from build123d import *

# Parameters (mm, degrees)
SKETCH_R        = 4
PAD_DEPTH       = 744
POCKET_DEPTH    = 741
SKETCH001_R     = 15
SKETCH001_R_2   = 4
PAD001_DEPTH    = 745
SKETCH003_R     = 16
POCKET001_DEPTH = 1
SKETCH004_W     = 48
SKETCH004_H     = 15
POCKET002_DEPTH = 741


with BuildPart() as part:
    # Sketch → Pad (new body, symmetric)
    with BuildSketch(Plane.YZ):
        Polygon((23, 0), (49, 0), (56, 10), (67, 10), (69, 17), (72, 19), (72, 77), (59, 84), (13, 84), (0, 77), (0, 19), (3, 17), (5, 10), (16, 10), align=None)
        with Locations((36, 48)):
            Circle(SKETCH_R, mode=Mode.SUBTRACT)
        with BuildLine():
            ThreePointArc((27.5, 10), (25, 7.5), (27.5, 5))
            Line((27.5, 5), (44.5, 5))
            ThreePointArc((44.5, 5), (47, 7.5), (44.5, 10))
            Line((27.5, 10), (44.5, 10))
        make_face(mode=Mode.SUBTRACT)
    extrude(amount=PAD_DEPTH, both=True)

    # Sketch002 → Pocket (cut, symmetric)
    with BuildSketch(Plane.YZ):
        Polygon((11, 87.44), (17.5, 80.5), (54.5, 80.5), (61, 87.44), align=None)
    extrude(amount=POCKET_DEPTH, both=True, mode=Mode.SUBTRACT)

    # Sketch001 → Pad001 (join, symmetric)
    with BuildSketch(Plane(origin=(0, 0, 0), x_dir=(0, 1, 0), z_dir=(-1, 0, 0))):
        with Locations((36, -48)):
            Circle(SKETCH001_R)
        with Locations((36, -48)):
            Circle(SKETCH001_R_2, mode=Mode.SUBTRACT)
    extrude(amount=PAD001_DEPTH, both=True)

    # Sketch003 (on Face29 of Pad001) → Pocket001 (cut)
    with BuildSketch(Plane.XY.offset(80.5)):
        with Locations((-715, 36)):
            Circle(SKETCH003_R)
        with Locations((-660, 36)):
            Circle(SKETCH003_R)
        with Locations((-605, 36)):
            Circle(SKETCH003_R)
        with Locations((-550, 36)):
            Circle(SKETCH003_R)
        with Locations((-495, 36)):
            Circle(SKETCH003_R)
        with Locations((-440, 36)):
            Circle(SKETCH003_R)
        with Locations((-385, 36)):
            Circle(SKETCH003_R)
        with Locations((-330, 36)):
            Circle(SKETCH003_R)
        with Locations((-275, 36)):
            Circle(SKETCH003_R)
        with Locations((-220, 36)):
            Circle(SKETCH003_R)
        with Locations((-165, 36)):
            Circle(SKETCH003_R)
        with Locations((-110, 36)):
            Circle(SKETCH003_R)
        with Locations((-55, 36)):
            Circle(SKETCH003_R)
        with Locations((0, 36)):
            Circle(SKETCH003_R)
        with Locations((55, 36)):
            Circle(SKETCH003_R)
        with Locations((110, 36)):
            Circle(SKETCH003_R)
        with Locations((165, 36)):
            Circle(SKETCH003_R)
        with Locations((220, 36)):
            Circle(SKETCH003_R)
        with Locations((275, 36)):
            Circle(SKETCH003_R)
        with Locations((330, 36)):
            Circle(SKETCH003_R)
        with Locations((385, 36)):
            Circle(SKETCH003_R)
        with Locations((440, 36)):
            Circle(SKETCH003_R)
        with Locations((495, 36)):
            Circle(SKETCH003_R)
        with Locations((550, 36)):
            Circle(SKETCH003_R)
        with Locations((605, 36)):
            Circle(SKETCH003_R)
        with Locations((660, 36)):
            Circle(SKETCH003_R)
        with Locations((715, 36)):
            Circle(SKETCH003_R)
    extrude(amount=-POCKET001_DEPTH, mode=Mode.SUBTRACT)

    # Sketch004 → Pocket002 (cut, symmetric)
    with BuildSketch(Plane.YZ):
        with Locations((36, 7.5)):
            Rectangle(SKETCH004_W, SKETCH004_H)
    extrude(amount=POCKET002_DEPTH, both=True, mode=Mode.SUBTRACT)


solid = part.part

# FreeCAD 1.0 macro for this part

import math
import FreeCAD as App
import Part
import Sketcher
from FreeCAD import Vector


def add_polygon(sketch, points):
    """Adds a closed chain of lines whose ends are joined by coincident constraints."""
    first, n = sketch.GeometryCount, len(points)
    for a, b in zip(points, points[1:] + points[:1]):
        sketch.addGeometry(Part.LineSegment(App.Vector(*a, 0), App.Vector(*b, 0)), False)
    for i in range(n):
        sketch.addConstraint(Sketcher.Constraint("Coincident", first + i, 2, first + (i + 1) % n, 1))

doc = App.newDocument("Part")
body = doc.addObject("PartDesign::Body", "Body")

sketch1 = body.newObject("Sketcher::SketchObject", "Sketch")
sketch1.AttachmentSupport = (doc.getObject("YZ_Plane"), [""])
sketch1.MapMode = "FlatFace"
add_polygon(sketch1, [(23, 0), (49, 0), (56, 10), (67, 10), (69, 17), (72, 19), (72, 77), (59, 84), (13, 84), (0, 77), (0, 19), (3, 17), (5, 10), (16, 10)])
sketch1.addGeometry(Part.ArcOfCircle(Part.Circle(Vector(27.5, 7.5, 0), Vector(0, 0, 1), 2.5), math.radians(90), math.radians(270)), False)
sketch1.addGeometry(Part.LineSegment(Vector(27.5, 10, 0), Vector(44.5, 10, 0)), False)
sketch1.addGeometry(Part.ArcOfCircle(Part.Circle(Vector(44.5, 7.5, 0), Vector(0, 0, 1), 2.5), math.radians(-90), math.radians(90)), False)
sketch1.addGeometry(Part.LineSegment(Vector(44.5, 5, 0), Vector(27.5, 5, 0)), False)
sketch1.addGeometry(Part.Circle(Vector(36, 48, 0), Vector(0, 0, 1), 4), False)
sketch1.addConstraint([
    Sketcher.Constraint("Tangent", 14, 1, 15, 1),
    Sketcher.Constraint("Tangent", 15, 2, 16, 2),
    Sketcher.Constraint("Tangent", 16, 1, 17, 1),
    Sketcher.Constraint("Tangent", 17, 2, 14, 2),
    Sketcher.Constraint("Horizontal", 0),
    Sketcher.Constraint("Horizontal", 2),
    Sketcher.Constraint("Vertical", 5),
    Sketcher.Constraint("Horizontal", 7),
    Sketcher.Constraint("Vertical", 9),
    Sketcher.Constraint("Horizontal", 12),
    Sketcher.Constraint("Horizontal", 15),
    Sketcher.Constraint("Horizontal", 17),
    Sketcher.Constraint("PointOnObject", 0, 2, -1),
    Sketcher.Constraint("PointOnObject", 8, 2, -2),
    Sketcher.Constraint("Horizontal", 5, 2, 8, 2),
    Sketcher.Constraint("Horizontal", 4, 2, 9, 2),
    Sketcher.Constraint("Horizontal", 3, 2, 10, 2),
    Sketcher.Constraint("Horizontal", 2, 2, 11, 2),
    Sketcher.Constraint("Horizontal", 12, 2, 14, 1),
    Sketcher.Constraint("Equal", 2, 12),
    Sketcher.Constraint("Equal", 6, 8),
    Sketcher.Constraint("Equal", 4, 10),
    Sketcher.Constraint("Equal", 3, 11),
    Sketcher.Constraint("Equal", 1, 13),
    Sketcher.Constraint("Diameter", 18, 8.0),
    Sketcher.Constraint("Radius", 14, 2.5),
    Sketcher.Constraint("DistanceX", 0, 1, 0, 2, 26.0),
    Sketcher.Constraint("DistanceX", 2, 1, 2, 2, 11.0),
    Sketcher.Constraint("DistanceX", 7, 2, 7, 1, 46.0),
    Sketcher.Constraint("DistanceX", 15, 1, 15, 2, 17.0),
    Sketcher.Constraint("DistanceY", 5, 1, 5, 2, 58.0),
    Sketcher.Constraint("DistanceX", -1, 1, 18, 3, 36.0),
    Sketcher.Constraint("DistanceY", -1, 1, 18, 3, 48.0),
    Sketcher.Constraint("DistanceX", -1, 1, 0, 2, 49.0),
    Sketcher.Constraint("DistanceX", -1, 1, 1, 2, 56.0),
    Sketcher.Constraint("DistanceY", -1, 1, 1, 2, 10.0),
    Sketcher.Constraint("DistanceX", -1, 1, 3, 2, 69.0),
    Sketcher.Constraint("DistanceY", -1, 1, 3, 2, 17.0),
    Sketcher.Constraint("DistanceY", -1, 1, 4, 2, 19.0),
    Sketcher.Constraint("DistanceY", -1, 1, 6, 2, 84.0),
    Sketcher.Constraint("DistanceX", -1, 1, 14, 3, 27.5),
])
pad1 = body.newObject("PartDesign::Pad", "Pad")
pad1.Profile = sketch1
pad1.Length = 1488
pad1.Midplane = True

sketch2 = body.newObject("Sketcher::SketchObject", "Sketch001")
sketch2.AttachmentSupport = (doc.getObject("YZ_Plane"), [""])
sketch2.MapMode = "FlatFace"
add_polygon(sketch2, [(11, 87), (18, 80), (54, 80), (61, 87)])
sketch2.addConstraint([
    Sketcher.Constraint("Horizontal", 1),
    Sketcher.Constraint("Horizontal", 3),
    Sketcher.Constraint("Equal", 0, 2),
    Sketcher.Constraint("DistanceX", 1, 1, 1, 2, 37.0),
    Sketcher.Constraint("DistanceX", 3, 2, 3, 1, 50.0),
    Sketcher.Constraint("DistanceX", -1, 1, 2, 2, 61.0),
    Sketcher.Constraint("DistanceY", -1, 1, 0, 2, 80.5),
    Sketcher.Constraint("DistanceY", -1, 1, 2, 2, 87.44),
])
pocket1 = body.newObject("PartDesign::Pocket", "Pocket")
pocket1.Profile = sketch2
pocket1.Length = 1482
pocket1.Midplane = True

sketch3 = body.newObject("Sketcher::SketchObject", "Sketch002")
sketch3.AttachmentSupport = (doc.getObject("YZ_Plane"), [""])
sketch3.MapMode = "FlatFace"
sketch3.addGeometry([
    Part.Circle(Vector(36, 48, 0), Vector(0, 0, 1), 15),
    Part.Circle(Vector(36, 48, 0), Vector(0, 0, 1), 4),
], False)
sketch3.addConstraint([
    Sketcher.Constraint("Coincident", 1, 3, 0, 3),
    Sketcher.Constraint("Diameter", 0, 30.0),
    Sketcher.Constraint("Diameter", 1, 8.0),
    Sketcher.Constraint("DistanceX", -1, 1, 0, 3, 36.0),
    Sketcher.Constraint("DistanceY", -1, 1, 0, 3, 48.0),
])
pad2 = body.newObject("PartDesign::Pad", "Pad001")
pad2.Profile = sketch3
pad2.Length = 1490
pad2.Midplane = True

sketch4 = body.newObject("Sketcher::SketchObject", "Sketch003")
sketch4.AttachmentSupport = (doc.getObject("XY_Plane"), [""])
sketch4.MapMode = "FlatFace"
sketch4.AttachmentOffset = App.Placement(Vector(0, 0, 80.5), App.Rotation())
sketch4.addGeometry([
    Part.Circle(Vector(-715, 36, 0), Vector(0, 0, 1), 16),
    Part.Circle(Vector(-660, 36, 0), Vector(0, 0, 1), 16),
    Part.Circle(Vector(-605, 36, 0), Vector(0, 0, 1), 16),
    Part.Circle(Vector(-550, 36, 0), Vector(0, 0, 1), 16),
    Part.Circle(Vector(-495, 36, 0), Vector(0, 0, 1), 16),
    Part.Circle(Vector(-440, 36, 0), Vector(0, 0, 1), 16),
    Part.Circle(Vector(-385, 36, 0), Vector(0, 0, 1), 16),
    Part.Circle(Vector(-330, 36, 0), Vector(0, 0, 1), 16),
    Part.Circle(Vector(-275, 36, 0), Vector(0, 0, 1), 16),
    Part.Circle(Vector(-220, 36, 0), Vector(0, 0, 1), 16),
    Part.Circle(Vector(-165, 36, 0), Vector(0, 0, 1), 16),
    Part.Circle(Vector(-110, 36, 0), Vector(0, 0, 1), 16),
    Part.Circle(Vector(-55, 36, 0), Vector(0, 0, 1), 16),
    Part.Circle(Vector(0, 36, 0), Vector(0, 0, 1), 16),
    Part.Circle(Vector(55, 36, 0), Vector(0, 0, 1), 16),
    Part.Circle(Vector(110, 36, 0), Vector(0, 0, 1), 16),
    Part.Circle(Vector(165, 36, 0), Vector(0, 0, 1), 16),
    Part.Circle(Vector(220, 36, 0), Vector(0, 0, 1), 16),
    Part.Circle(Vector(275, 36, 0), Vector(0, 0, 1), 16),
    Part.Circle(Vector(330, 36, 0), Vector(0, 0, 1), 16),
    Part.Circle(Vector(385, 36, 0), Vector(0, 0, 1), 16),
    Part.Circle(Vector(440, 36, 0), Vector(0, 0, 1), 16),
    Part.Circle(Vector(495, 36, 0), Vector(0, 0, 1), 16),
    Part.Circle(Vector(550, 36, 0), Vector(0, 0, 1), 16),
    Part.Circle(Vector(605, 36, 0), Vector(0, 0, 1), 16),
    Part.Circle(Vector(660, 36, 0), Vector(0, 0, 1), 16),
    Part.Circle(Vector(715, 36, 0), Vector(0, 0, 1), 16),
], False)
sketch4.addConstraint([
    Sketcher.Constraint("Equal", 0, 1),
    Sketcher.Constraint("Equal", 1, 2),
    Sketcher.Constraint("Equal", 2, 3),
    Sketcher.Constraint("Equal", 3, 4),
    Sketcher.Constraint("Equal", 4, 5),
    Sketcher.Constraint("Equal", 5, 6),
    Sketcher.Constraint("Equal", 6, 7),
    Sketcher.Constraint("Equal", 7, 8),
    Sketcher.Constraint("Equal", 8, 9),
    Sketcher.Constraint("Equal", 9, 10),
    Sketcher.Constraint("Equal", 10, 11),
    Sketcher.Constraint("Equal", 11, 12),
    Sketcher.Constraint("Equal", 12, 13),
    Sketcher.Constraint("Equal", 13, 14),
    Sketcher.Constraint("Equal", 14, 15),
    Sketcher.Constraint("Equal", 15, 16),
    Sketcher.Constraint("Equal", 16, 17),
    Sketcher.Constraint("Equal", 17, 18),
    Sketcher.Constraint("Equal", 18, 19),
    Sketcher.Constraint("Equal", 19, 20),
    Sketcher.Constraint("Equal", 20, 21),
    Sketcher.Constraint("Equal", 21, 22),
    Sketcher.Constraint("Equal", 22, 23),
    Sketcher.Constraint("Equal", 23, 24),
    Sketcher.Constraint("Equal", 24, 25),
    Sketcher.Constraint("Equal", 25, 26),
    Sketcher.Constraint("Symmetric", 12, 3, 14, 3, -2),
    Sketcher.Constraint("Symmetric", 11, 3, 15, 3, -2),
    Sketcher.Constraint("Symmetric", 10, 3, 16, 3, -2),
    Sketcher.Constraint("Symmetric", 9, 3, 17, 3, -2),
    Sketcher.Constraint("Symmetric", 8, 3, 18, 3, -2),
    Sketcher.Constraint("Symmetric", 7, 3, 19, 3, -2),
    Sketcher.Constraint("Symmetric", 6, 3, 20, 3, -2),
    Sketcher.Constraint("Symmetric", 5, 3, 21, 3, -2),
    Sketcher.Constraint("Symmetric", 4, 3, 22, 3, -2),
    Sketcher.Constraint("Symmetric", 3, 3, 23, 3, -2),
    Sketcher.Constraint("Symmetric", 2, 3, 24, 3, -2),
    Sketcher.Constraint("Symmetric", 1, 3, 25, 3, -2),
    Sketcher.Constraint("Symmetric", 0, 3, 26, 3, -2),
    Sketcher.Constraint("PointOnObject", 13, 3, -2),
    Sketcher.Constraint("Horizontal", 0, 3, 1, 3),
    Sketcher.Constraint("Horizontal", 1, 3, 2, 3),
    Sketcher.Constraint("Horizontal", 2, 3, 3, 3),
    Sketcher.Constraint("Horizontal", 3, 3, 4, 3),
    Sketcher.Constraint("Horizontal", 4, 3, 5, 3),
    Sketcher.Constraint("Horizontal", 5, 3, 6, 3),
    Sketcher.Constraint("Horizontal", 6, 3, 7, 3),
    Sketcher.Constraint("Horizontal", 7, 3, 8, 3),
    Sketcher.Constraint("Horizontal", 8, 3, 9, 3),
    Sketcher.Constraint("Horizontal", 9, 3, 10, 3),
    Sketcher.Constraint("Horizontal", 10, 3, 11, 3),
    Sketcher.Constraint("Horizontal", 11, 3, 12, 3),
    Sketcher.Constraint("Horizontal", 12, 3, 13, 3),
    Sketcher.Constraint("Diameter", 0, 32.0),
    Sketcher.Constraint("DistanceX", 0, 3, -1, 1, 715.0),
    Sketcher.Constraint("DistanceY", -1, 1, 0, 3, 36.0),
    Sketcher.Constraint("DistanceX", 1, 3, -1, 1, 660.0),
    Sketcher.Constraint("DistanceX", 2, 3, -1, 1, 605.0),
    Sketcher.Constraint("DistanceX", 3, 3, -1, 1, 550.0),
    Sketcher.Constraint("DistanceX", 4, 3, -1, 1, 495.0),
    Sketcher.Constraint("DistanceX", 5, 3, -1, 1, 440.0),
    Sketcher.Constraint("DistanceX", 6, 3, -1, 1, 385.0),
    Sketcher.Constraint("DistanceX", 7, 3, -1, 1, 330.0),
    Sketcher.Constraint("DistanceX", 8, 3, -1, 1, 275.0),
    Sketcher.Constraint("DistanceX", 9, 3, -1, 1, 220.0),
    Sketcher.Constraint("DistanceX", 10, 3, -1, 1, 165.0),
    Sketcher.Constraint("DistanceX", 11, 3, -1, 1, 110.0),
    Sketcher.Constraint("DistanceX", 12, 3, -1, 1, 55.0),
])
pocket2 = body.newObject("PartDesign::Pocket", "Pocket001")
pocket2.Profile = sketch4
pocket2.Length = 1

sketch5 = body.newObject("Sketcher::SketchObject", "Sketch004")
sketch5.AttachmentSupport = (doc.getObject("YZ_Plane"), [""])
sketch5.MapMode = "FlatFace"
add_polygon(sketch5, [(12, 15), (12, 0), (60, 0), (60, 15)])
sketch5.addConstraint([
    Sketcher.Constraint("Vertical", 0),
    Sketcher.Constraint("Horizontal", 1),
    Sketcher.Constraint("Vertical", 2),
    Sketcher.Constraint("Horizontal", 3),
    Sketcher.Constraint("PointOnObject", 0, 2, -1),
    Sketcher.Constraint("DistanceX", 1, 1, 1, 2, 48.0),
    Sketcher.Constraint("DistanceY", 0, 2, 0, 1, 15.0),
    Sketcher.Constraint("DistanceX", -1, 1, 0, 2, 12.0),
])
pocket3 = body.newObject("PartDesign::Pocket", "Pocket002")
pocket3.Profile = sketch5
pocket3.Length = 1482
pocket3.Midplane = True

doc.recompute()
